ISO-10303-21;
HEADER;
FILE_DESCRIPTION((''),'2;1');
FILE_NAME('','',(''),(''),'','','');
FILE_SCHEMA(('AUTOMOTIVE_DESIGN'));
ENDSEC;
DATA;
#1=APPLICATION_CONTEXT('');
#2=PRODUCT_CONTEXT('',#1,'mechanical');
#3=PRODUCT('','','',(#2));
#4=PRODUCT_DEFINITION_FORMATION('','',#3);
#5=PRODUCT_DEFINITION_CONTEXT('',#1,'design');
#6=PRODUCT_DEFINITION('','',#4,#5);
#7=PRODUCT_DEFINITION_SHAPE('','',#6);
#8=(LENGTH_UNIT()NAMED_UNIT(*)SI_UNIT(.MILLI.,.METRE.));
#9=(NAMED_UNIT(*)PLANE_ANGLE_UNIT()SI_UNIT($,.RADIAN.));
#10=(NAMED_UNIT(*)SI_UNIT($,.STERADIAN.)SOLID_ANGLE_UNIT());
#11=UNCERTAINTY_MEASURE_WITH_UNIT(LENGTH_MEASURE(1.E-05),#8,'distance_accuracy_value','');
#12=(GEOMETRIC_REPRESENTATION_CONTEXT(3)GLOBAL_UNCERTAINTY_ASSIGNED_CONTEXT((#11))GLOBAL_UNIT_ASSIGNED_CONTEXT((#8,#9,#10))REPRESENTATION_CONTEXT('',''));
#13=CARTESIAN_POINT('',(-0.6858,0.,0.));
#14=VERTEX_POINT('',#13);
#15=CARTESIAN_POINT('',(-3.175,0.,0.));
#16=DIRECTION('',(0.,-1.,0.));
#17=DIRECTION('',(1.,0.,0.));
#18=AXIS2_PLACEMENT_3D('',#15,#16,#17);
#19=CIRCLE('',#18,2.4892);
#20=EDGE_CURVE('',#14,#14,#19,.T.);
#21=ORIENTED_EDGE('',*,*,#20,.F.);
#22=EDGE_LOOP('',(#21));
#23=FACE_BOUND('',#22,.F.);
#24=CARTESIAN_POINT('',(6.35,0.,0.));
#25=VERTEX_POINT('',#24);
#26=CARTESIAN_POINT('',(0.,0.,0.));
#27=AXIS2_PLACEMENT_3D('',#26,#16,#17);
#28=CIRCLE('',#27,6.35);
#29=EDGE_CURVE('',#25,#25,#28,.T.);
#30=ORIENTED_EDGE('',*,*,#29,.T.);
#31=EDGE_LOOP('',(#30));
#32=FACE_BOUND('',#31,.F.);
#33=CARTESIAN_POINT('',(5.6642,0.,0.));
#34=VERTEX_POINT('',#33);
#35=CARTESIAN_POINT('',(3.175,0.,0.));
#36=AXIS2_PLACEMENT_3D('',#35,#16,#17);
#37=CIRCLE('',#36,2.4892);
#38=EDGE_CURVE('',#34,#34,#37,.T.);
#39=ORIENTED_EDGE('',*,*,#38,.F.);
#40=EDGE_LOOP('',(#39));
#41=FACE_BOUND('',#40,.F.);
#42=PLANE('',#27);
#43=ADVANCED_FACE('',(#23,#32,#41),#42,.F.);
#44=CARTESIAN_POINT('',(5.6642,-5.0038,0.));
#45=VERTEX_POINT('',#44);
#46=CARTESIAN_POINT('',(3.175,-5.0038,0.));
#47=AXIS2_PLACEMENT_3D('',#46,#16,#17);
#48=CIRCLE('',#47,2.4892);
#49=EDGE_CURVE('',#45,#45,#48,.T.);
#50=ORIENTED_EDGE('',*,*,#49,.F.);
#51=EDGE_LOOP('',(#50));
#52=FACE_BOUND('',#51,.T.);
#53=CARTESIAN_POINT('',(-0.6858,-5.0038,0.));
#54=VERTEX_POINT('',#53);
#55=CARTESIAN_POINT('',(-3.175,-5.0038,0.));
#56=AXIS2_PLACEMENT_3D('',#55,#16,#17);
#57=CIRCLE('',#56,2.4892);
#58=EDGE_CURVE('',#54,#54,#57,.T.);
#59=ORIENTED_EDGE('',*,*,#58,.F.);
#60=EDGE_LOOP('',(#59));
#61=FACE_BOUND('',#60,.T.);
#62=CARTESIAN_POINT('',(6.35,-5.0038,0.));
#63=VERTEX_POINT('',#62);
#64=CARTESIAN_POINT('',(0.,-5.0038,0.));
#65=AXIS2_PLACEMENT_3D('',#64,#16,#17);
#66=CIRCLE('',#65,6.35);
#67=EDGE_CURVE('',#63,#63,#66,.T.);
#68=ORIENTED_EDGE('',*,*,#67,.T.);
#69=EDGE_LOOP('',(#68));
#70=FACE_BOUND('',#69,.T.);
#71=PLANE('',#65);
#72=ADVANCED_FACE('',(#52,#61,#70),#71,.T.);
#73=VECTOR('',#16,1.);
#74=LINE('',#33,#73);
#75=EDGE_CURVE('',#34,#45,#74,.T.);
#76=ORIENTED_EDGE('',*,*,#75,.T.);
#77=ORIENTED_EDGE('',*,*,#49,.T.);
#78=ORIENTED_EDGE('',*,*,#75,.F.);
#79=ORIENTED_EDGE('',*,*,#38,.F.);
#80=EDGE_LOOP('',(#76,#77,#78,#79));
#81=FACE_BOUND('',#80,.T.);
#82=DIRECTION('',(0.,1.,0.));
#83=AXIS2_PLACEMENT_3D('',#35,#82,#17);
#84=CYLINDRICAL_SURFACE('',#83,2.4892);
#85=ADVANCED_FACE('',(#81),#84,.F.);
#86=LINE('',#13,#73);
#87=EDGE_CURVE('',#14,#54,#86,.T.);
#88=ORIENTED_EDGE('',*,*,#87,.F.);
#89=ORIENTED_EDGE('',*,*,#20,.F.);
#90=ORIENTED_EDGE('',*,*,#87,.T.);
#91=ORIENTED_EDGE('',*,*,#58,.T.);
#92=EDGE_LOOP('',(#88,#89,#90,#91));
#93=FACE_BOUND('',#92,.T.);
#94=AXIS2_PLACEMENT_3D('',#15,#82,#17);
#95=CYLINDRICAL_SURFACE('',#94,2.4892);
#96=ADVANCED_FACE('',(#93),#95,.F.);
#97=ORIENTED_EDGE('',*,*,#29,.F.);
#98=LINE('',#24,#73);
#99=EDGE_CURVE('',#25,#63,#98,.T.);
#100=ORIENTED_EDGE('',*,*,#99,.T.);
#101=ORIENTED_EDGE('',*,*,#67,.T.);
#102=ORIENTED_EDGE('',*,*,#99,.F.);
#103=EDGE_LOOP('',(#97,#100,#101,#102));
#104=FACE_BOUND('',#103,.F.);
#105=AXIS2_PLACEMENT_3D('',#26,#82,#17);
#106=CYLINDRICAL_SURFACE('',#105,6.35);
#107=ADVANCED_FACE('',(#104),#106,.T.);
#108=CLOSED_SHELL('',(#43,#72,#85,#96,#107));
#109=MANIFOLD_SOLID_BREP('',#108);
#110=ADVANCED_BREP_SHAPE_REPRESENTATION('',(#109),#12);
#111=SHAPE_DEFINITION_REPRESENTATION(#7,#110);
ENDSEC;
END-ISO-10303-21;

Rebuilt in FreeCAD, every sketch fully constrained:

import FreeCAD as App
import Part
import Sketcher

V = App.Vector
Q = App.Units.Quantity

doc = App.newDocument("Part")
params = doc.addObject("Spreadsheet::Sheet", "Params")
for row, (alias, value) in enumerate([
    ("sketch1_diameter", "0.5 in"),
    ("sketch1_diameter2", "0.196 in"),
    ("pad1_length", "0.197 in"),
], start=1):
    params.set(f"A{row}", alias)
    params.set(f"B{row}", "=" + value)
    params.setAlias(f"B{row}", alias)

body = doc.addObject("PartDesign::Body", "Body")

# Sketch on XZ plane
sketch1 = doc.addObject("Sketcher::SketchObject", "Sketch")
body.addObject(sketch1)
sketch1.AttachmentSupport = (doc.XZ_Plane, [""])
sketch1.MapMode = "FlatFace"
sketch1.addGeometry([
    Part.Circle(V(0, 0, 0), V(0, 0, 1), 6.3),
    Part.Circle(V(-3.2, 0, 0), V(0, 0, 1), 2.5),
    Part.Circle(V(3.2, 0, 0), V(0, 0, 1), 2.5),
], False)
sketch1.addConstraint([
    Sketcher.Constraint("Coincident", 0, 3, -1, 1),
    Sketcher.Constraint("Equal", 1, 2),
    Sketcher.Constraint("Symmetric", 1, 3, 2, 3, -1, 1),
    Sketcher.Constraint("PointOnObject", 1, 3, -1),
    Sketcher.Constraint("Diameter", 0, Q("0.5 in")),
    Sketcher.Constraint("Diameter", 1, Q("0.196 in")),
    Sketcher.Constraint("DistanceX", 1, 3, 2, 3, Q("0.25 in")),
])
sketch1.setExpression("Constraints[4]", "Params.sketch1_diameter")
sketch1.setExpression("Constraints[5]", "Params.sketch1_diameter2")
pad1 = doc.addObject("PartDesign::Pad", "Pad")
body.addObject(pad1)
pad1.Profile = sketch1
pad1.setExpression("Length", "Params.pad1_length")

doc.recompute()
